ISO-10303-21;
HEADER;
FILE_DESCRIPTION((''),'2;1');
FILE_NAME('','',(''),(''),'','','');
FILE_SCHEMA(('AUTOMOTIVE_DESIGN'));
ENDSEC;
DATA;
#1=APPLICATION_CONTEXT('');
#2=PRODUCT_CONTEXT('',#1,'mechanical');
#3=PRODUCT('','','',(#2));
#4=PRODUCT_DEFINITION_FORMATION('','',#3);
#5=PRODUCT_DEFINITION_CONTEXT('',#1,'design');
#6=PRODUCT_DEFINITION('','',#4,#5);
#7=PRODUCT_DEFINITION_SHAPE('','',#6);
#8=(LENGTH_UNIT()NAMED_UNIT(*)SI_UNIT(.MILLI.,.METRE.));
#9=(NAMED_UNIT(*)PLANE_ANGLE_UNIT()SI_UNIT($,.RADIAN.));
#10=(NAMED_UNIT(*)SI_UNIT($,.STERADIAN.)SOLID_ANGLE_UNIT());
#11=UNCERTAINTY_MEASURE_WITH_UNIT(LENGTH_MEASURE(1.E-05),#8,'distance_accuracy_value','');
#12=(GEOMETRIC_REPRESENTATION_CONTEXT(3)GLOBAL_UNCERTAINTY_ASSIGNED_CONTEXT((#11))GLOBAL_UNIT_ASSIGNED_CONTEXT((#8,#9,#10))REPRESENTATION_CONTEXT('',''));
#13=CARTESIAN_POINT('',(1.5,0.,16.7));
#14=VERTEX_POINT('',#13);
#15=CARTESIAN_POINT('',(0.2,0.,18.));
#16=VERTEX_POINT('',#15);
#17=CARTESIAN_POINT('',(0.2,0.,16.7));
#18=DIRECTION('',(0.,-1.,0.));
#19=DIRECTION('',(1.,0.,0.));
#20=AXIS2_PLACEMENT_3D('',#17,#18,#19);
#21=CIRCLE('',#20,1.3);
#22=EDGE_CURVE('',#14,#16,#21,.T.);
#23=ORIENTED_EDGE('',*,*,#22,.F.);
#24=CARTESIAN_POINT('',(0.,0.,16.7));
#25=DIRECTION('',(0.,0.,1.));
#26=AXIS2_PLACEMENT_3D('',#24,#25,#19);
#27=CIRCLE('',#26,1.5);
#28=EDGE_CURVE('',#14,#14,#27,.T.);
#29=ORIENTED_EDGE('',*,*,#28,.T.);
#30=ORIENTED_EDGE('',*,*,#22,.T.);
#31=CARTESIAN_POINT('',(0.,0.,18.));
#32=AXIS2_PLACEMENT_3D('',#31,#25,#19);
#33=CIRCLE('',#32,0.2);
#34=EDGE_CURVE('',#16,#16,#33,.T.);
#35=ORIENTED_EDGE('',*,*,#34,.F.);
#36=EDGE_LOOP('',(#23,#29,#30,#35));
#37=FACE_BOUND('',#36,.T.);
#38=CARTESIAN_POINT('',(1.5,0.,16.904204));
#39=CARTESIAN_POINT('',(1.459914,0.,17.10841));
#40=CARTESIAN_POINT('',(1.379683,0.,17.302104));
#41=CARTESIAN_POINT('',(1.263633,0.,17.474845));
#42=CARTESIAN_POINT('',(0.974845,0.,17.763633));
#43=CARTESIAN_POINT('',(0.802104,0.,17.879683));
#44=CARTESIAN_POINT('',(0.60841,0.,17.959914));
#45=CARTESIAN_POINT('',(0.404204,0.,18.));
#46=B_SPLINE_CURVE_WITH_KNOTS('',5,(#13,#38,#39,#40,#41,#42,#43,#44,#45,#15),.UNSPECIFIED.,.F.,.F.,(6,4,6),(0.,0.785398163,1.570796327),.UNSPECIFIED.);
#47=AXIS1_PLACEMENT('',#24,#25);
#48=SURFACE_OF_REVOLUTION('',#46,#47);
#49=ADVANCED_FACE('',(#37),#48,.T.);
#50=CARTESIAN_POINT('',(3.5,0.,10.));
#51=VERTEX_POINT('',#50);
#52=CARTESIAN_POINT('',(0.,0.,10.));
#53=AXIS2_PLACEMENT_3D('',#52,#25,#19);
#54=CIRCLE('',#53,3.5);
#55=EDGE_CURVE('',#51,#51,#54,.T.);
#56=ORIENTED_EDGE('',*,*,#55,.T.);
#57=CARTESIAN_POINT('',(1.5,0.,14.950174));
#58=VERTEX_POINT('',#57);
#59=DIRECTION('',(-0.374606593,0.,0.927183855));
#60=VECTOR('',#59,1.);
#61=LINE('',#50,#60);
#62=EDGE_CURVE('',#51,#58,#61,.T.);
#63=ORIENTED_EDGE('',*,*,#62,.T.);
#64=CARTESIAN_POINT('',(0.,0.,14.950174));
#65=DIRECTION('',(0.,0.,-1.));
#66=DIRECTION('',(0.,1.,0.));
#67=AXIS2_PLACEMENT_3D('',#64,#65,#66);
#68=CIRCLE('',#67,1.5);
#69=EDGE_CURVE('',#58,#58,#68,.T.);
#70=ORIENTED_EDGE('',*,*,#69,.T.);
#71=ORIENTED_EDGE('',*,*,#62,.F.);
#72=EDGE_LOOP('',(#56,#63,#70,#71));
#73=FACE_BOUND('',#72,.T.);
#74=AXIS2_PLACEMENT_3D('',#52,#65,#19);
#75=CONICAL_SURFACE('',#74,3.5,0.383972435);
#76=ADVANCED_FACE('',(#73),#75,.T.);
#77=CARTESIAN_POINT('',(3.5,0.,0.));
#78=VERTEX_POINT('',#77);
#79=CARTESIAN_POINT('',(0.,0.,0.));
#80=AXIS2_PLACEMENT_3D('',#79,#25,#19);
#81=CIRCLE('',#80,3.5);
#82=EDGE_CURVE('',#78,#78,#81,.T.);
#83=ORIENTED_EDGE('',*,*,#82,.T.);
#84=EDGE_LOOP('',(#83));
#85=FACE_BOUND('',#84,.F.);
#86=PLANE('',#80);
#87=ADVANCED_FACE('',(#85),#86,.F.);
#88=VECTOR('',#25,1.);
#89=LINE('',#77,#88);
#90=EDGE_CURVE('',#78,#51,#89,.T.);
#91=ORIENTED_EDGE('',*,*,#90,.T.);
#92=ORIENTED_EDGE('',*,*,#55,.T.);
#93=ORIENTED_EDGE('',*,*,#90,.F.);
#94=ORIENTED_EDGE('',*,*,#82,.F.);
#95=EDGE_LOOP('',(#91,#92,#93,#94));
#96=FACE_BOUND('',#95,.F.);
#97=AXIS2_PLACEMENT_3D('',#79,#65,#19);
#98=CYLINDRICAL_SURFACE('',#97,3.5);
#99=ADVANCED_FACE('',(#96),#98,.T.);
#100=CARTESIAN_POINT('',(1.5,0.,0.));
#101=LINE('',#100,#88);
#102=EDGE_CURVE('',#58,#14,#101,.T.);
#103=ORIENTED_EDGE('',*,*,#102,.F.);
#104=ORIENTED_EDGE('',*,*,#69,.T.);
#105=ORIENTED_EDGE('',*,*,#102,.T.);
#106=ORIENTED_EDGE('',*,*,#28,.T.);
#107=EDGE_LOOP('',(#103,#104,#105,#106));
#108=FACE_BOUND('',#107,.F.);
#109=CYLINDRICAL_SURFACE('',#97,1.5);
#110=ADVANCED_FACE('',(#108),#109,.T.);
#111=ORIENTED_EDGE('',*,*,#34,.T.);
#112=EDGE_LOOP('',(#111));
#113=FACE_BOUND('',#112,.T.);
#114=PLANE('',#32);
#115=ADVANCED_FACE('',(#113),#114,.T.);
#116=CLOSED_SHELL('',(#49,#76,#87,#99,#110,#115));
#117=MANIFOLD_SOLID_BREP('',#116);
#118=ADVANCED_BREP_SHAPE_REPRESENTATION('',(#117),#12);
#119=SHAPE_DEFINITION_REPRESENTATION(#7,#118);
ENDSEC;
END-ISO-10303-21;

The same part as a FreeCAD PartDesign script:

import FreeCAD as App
import Part
import Sketcher
Q = App.Units.Quantity


def edges_at(feature, points):
    """Names of the edges that pass closest to the given points."""
    edges = feature.Shape.Edges
    near = lambda p: min(range(len(edges)), key=lambda i: edges[i].distToShape(Part.Vertex(*p))[0])
    return sorted({f"Edge{near(p) + 1}" for p in points})

doc = App.newDocument("Part")
body = doc.addObject("PartDesign::Body", "Body")

# Sketch on XY plane
sketch1 = body.newObject("Sketcher::SketchObject", "Sketch")
sketch1.AttachmentSupport = (doc.getObject("XY_Plane"), [""])
sketch1.MapMode = "FlatFace"
sketch1.addGeometry(Part.Circle(App.Vector(0, 0, 0), App.Vector(0, 0, 1), 3.5), False)
sketch1.addConstraint([
    Sketcher.Constraint("Coincident", 0, 3, -1, 1),
    Sketcher.Constraint("Diameter", 0, Q("7 mm")),
])
pad1 = body.newObject("PartDesign::Pad", "Pad")
pad1.Profile = sketch1
pad1.Length = 10

# Sketch on XY plane
sketch2 = body.newObject("Sketcher::SketchObject", "Sketch001")
sketch2.AttachmentSupport = (doc.getObject("XY_Plane"), [""])
sketch2.MapMode = "FlatFace"
sketch2.AttachmentOffset = App.Placement(App.Vector(0, 0, 10), App.Rotation())
sketch2.addGeometry(Part.Circle(App.Vector(0, 0, 0), App.Vector(0, 0, 1), 3.5), False)
sketch2.addConstraint([
    Sketcher.Constraint("Coincident", 0, 3, -1, 1),
    Sketcher.Constraint("Diameter", 0, Q("7 mm")),
])
pad2 = body.newObject("PartDesign::Pad", "Pad001")
pad2.Profile = sketch2
pad2.Length = 5
pad2.TaperAngle = -22

# Sketch on XY plane
sketch3 = body.newObject("Sketcher::SketchObject", "Sketch002")
sketch3.AttachmentSupport = (doc.getObject("XY_Plane"), [""])
sketch3.MapMode = "FlatFace"
sketch3.addGeometry(Part.Circle(App.Vector(0, 0, 0), App.Vector(0, 0, 1), 1.5), False)
sketch3.addConstraint([
    Sketcher.Constraint("Coincident", 0, 3, -1, 1),
    Sketcher.Constraint("Diameter", 0, Q("3 mm")),
])
pad3 = body.newObject("PartDesign::Pad", "Pad002")
pad3.Profile = sketch3
pad3.Length = 18
doc.recompute()

fillet = body.newObject("PartDesign::Fillet", "Fillet")
fillet.Base = (pad3, edges_at(pad3, [(-1.5, 0, 18)]))
fillet.Radius = 1.3

doc.recompute()
